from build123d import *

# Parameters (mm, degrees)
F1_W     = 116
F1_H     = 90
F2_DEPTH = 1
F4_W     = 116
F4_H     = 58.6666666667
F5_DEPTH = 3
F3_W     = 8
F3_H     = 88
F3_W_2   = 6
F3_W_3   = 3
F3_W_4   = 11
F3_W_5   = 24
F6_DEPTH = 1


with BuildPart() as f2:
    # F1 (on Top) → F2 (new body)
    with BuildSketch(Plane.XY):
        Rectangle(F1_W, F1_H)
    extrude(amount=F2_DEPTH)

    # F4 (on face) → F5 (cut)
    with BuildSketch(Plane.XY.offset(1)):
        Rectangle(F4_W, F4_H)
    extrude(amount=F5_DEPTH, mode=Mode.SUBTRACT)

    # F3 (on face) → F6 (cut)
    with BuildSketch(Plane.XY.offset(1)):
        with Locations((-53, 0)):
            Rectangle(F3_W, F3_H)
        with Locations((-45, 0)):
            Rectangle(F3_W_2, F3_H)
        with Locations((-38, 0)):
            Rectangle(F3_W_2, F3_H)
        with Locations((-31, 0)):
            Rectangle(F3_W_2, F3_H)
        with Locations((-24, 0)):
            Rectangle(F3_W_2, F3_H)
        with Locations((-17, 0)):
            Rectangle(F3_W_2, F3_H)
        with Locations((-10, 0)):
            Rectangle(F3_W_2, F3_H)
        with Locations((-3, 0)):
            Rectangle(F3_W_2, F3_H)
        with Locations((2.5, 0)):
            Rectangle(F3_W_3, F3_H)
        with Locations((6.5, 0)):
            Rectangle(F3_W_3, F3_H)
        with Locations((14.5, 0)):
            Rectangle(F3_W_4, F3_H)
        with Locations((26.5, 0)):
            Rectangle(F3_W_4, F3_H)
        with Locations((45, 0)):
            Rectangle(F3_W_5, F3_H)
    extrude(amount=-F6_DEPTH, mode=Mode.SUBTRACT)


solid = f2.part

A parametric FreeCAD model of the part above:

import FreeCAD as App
import Part
import Sketcher
Q = App.Units.Quantity

doc = App.newDocument("Part")
params = doc.addObject("Spreadsheet::Sheet", "Params")
for row, (alias, value) in enumerate([
    ("sketch1_width", "116 mm"),
    ("sketch1_height", "90 mm"),
    ("pad1_length", "1 mm"),
    ("sketch2_width", "116 mm"),
    ("pocket1_length", "3 mm"),
    ("sketch3_width", "8 mm"),
    ("sketch3_width2", "6 mm"),
    ("sketch3_width3", "3 mm"),
    ("sketch3_width4", "11 mm"),
    ("sketch3_width5", "24 mm"),
    ("pocket2_length", "1 mm"),
], start=1):
    params.set(f"A{row}", alias)
    params.set(f"B{row}", "=" + value)
    params.setAlias(f"B{row}", alias)

body = doc.addObject("PartDesign::Body", "Body")

# Sketch on XY plane
sketch1 = body.newObject("Sketcher::SketchObject", "Sketch")
sketch1.AttachmentSupport = (doc.getObject("XY_Plane"), [""])
sketch1.MapMode = "FlatFace"
sketch1.addGeometry([
    Part.LineSegment(App.Vector(-58, 45, 0), App.Vector(-58, -45, 0)),
    Part.LineSegment(App.Vector(-58, -45, 0), App.Vector(58, -45, 0)),
    Part.LineSegment(App.Vector(58, -45, 0), App.Vector(58, 45, 0)),
    Part.LineSegment(App.Vector(58, 45, 0), App.Vector(-58, 45, 0)),
], False)
sketch1.addConstraint([
    Sketcher.Constraint("Coincident", 0, 2, 1, 1),
    Sketcher.Constraint("Coincident", 1, 2, 2, 1),
    Sketcher.Constraint("Coincident", 2, 2, 3, 1),
    Sketcher.Constraint("Coincident", 3, 2, 0, 1),
    Sketcher.Constraint("Vertical", 0),
    Sketcher.Constraint("Horizontal", 1),
    Sketcher.Constraint("Vertical", 2),
    Sketcher.Constraint("Horizontal", 3),
    Sketcher.Constraint("Symmetric", 0, 2, 2, 2, -1, 1),
    Sketcher.Constraint("DistanceX", 1, 1, 1, 2, Q("116 mm")),
    Sketcher.Constraint("DistanceY", 0, 2, 0, 1, Q("90 mm")),
])
sketch1.setExpression("Constraints[9]", "Params.sketch1_width")
sketch1.setExpression("Constraints[10]", "Params.sketch1_height")
pad1 = body.newObject("PartDesign::Pad", "Pad")
pad1.Profile = sketch1
pad1.setExpression("Length", "Params.pad1_length")

# Sketch on XY plane
sketch2 = body.newObject("Sketcher::SketchObject", "Sketch001")
sketch2.AttachmentSupport = (doc.getObject("XY_Plane"), [""])
sketch2.MapMode = "FlatFace"
sketch2.AttachmentOffset = App.Placement(App.Vector(0, 0, 1), App.Rotation())
sketch2.addGeometry([
    Part.LineSegment(App.Vector(-58, 29, 0), App.Vector(-58, -29, 0)),
    Part.LineSegment(App.Vector(-58, -29, 0), App.Vector(58, -29, 0)),
    Part.LineSegment(App.Vector(58, -29, 0), App.Vector(58, 29, 0)),
    Part.LineSegment(App.Vector(58, 29, 0), App.Vector(-58, 29, 0)),
], False)
sketch2.addConstraint([
    Sketcher.Constraint("Coincident", 0, 2, 1, 1),
    Sketcher.Constraint("Coincident", 1, 2, 2, 1),
    Sketcher.Constraint("Coincident", 2, 2, 3, 1),
    Sketcher.Constraint("Coincident", 3, 2, 0, 1),
    Sketcher.Constraint("Vertical", 0),
    Sketcher.Constraint("Horizontal", 1),
    Sketcher.Constraint("Vertical", 2),
    Sketcher.Constraint("Horizontal", 3),
    Sketcher.Constraint("Symmetric", 0, 2, 2, 2, -1, 1),
    Sketcher.Constraint("DistanceX", 1, 1, 1, 2, Q("116 mm")),
    Sketcher.Constraint("DistanceY", 0, 2, 0, 1, Q("58.666667 mm")),
])
sketch2.setExpression("Constraints[9]", "Params.sketch2_width")
pocket1 = body.newObject("PartDesign::Pocket", "Pocket")
pocket1.Profile = sketch2
pocket1.setExpression("Length", "Params.pocket1_length")
pocket1.Reversed = True

# Sketch on XY plane
sketch3 = body.newObject("Sketcher::SketchObject", "Sketch002")
sketch3.AttachmentSupport = (doc.getObject("XY_Plane"), [""])
sketch3.MapMode = "FlatFace"
sketch3.AttachmentOffset = App.Placement(App.Vector(0, 0, 1), App.Rotation())
sketch3.addGeometry([
    Part.LineSegment(App.Vector(-57, 44, 0), App.Vector(-57, -44, 0)),  # 0
    Part.LineSegment(App.Vector(-57, -44, 0), App.Vector(-49, -44, 0)),  # 1
    Part.LineSegment(App.Vector(-49, -44, 0), App.Vector(-49, 44, 0)),  # 2
    Part.LineSegment(App.Vector(-49, 44, 0), App.Vector(-57, 44, 0)),  # 3
    Part.LineSegment(App.Vector(-48, 44, 0), App.Vector(-48, -44, 0)),  # 4
    Part.LineSegment(App.Vector(-48, -44, 0), App.Vector(-42, -44, 0)),  # 5
    Part.LineSegment(App.Vector(-42, -44, 0), App.Vector(-42, 44, 0)),  # 6
    Part.LineSegment(App.Vector(-42, 44, 0), App.Vector(-48, 44, 0)),  # 7
    Part.LineSegment(App.Vector(-41, 44, 0), App.Vector(-41, -44, 0)),  # 8
    Part.LineSegment(App.Vector(-41, -44, 0), App.Vector(-35, -44, 0)),  # 9
    Part.LineSegment(App.Vector(-35, -44, 0), App.Vector(-35, 44, 0)),  # 10
    Part.LineSegment(App.Vector(-35, 44, 0), App.Vector(-41, 44, 0)),  # 11
    Part.LineSegment(App.Vector(-34, 44, 0), App.Vector(-34, -44, 0)),  # 12
    Part.LineSegment(App.Vector(-34, -44, 0), App.Vector(-28, -44, 0)),  # 13
    Part.LineSegment(App.Vector(-28, -44, 0), App.Vector(-28, 44, 0)),  # 14
    Part.LineSegment(App.Vector(-28, 44, 0), App.Vector(-34, 44, 0)),  # 15
    Part.LineSegment(App.Vector(-27, 44, 0), App.Vector(-27, -44, 0)),  # 16
    Part.LineSegment(App.Vector(-27, -44, 0), App.Vector(-21, -44, 0)),  # 17
    Part.LineSegment(App.Vector(-21, -44, 0), App.Vector(-21, 44, 0)),  # 18
    Part.LineSegment(App.Vector(-21, 44, 0), App.Vector(-27, 44, 0)),  # 19
    Part.LineSegment(App.Vector(-20, 44, 0), App.Vector(-20, -44, 0)),  # 20
    Part.LineSegment(App.Vector(-20, -44, 0), App.Vector(-14, -44, 0)),  # 21
    Part.LineSegment(App.Vector(-14, -44, 0), App.Vector(-14, 44, 0)),  # 22
    Part.LineSegment(App.Vector(-14, 44, 0), App.Vector(-20, 44, 0)),  # 23
    Part.LineSegment(App.Vector(-13, 44, 0), App.Vector(-13, -44, 0)),  # 24
    Part.LineSegment(App.Vector(-13, -44, 0), App.Vector(-7, -44, 0)),  # 25
    Part.LineSegment(App.Vector(-7, -44, 0), App.Vector(-7, 44, 0)),  # 26
    Part.LineSegment(App.Vector(-7, 44, 0), App.Vector(-13, 44, 0)),  # 27
    Part.LineSegment(App.Vector(-6, 44, 0), App.Vector(-6, -44, 0)),  # 28
    Part.LineSegment(App.Vector(-6, -44, 0), App.Vector(0, -44, 0)),  # 29
    Part.LineSegment(App.Vector(0, -44, 0), App.Vector(0, 44, 0)),  # 30
    Part.LineSegment(App.Vector(0, 44, 0), App.Vector(-6, 44, 0)),  # 31
    Part.LineSegment(App.Vector(1, 44, 0), App.Vector(1, -44, 0)),  # 32
    Part.LineSegment(App.Vector(1, -44, 0), App.Vector(4, -44, 0)),  # 33
    Part.LineSegment(App.Vector(4, -44, 0), App.Vector(4, 44, 0)),  # 34
    Part.LineSegment(App.Vector(4, 44, 0), App.Vector(1, 44, 0)),  # 35
    Part.LineSegment(App.Vector(5, 44, 0), App.Vector(5, -44, 0)),  # 36
    Part.LineSegment(App.Vector(5, -44, 0), App.Vector(8, -44, 0)),  # 37
    Part.LineSegment(App.Vector(8, -44, 0), App.Vector(8, 44, 0)),  # 38
    Part.LineSegment(App.Vector(8, 44, 0), App.Vector(5, 44, 0)),  # 39
    Part.LineSegment(App.Vector(9, 44, 0), App.Vector(9, -44, 0)),  # 40
    Part.LineSegment(App.Vector(9, -44, 0), App.Vector(20, -44, 0)),  # 41
    Part.LineSegment(App.Vector(20, -44, 0), App.Vector(20, 44, 0)),  # 42
    Part.LineSegment(App.Vector(20, 44, 0), App.Vector(9, 44, 0)),  # 43
    Part.LineSegment(App.Vector(21, 44, 0), App.Vector(21, -44, 0)),  # 44
    Part.LineSegment(App.Vector(21, -44, 0), App.Vector(32, -44, 0)),  # 45
    Part.LineSegment(App.Vector(32, -44, 0), App.Vector(32, 44, 0)),  # 46
    Part.LineSegment(App.Vector(32, 44, 0), App.Vector(21, 44, 0)),  # 47
    Part.LineSegment(App.Vector(33, 44, 0), App.Vector(33, -44, 0)),  # 48
    Part.LineSegment(App.Vector(33, -44, 0), App.Vector(57, -44, 0)),  # 49
    Part.LineSegment(App.Vector(57, -44, 0), App.Vector(57, 44, 0)),  # 50
    Part.LineSegment(App.Vector(57, 44, 0), App.Vector(33, 44, 0)),  # 51
], False)
sketch3.addConstraint([
    Sketcher.Constraint("Coincident", 0, 2, 1, 1),
    Sketcher.Constraint("Coincident", 1, 2, 2, 1),
    Sketcher.Constraint("Coincident", 2, 2, 3, 1),
    Sketcher.Constraint("Coincident", 3, 2, 0, 1),
    Sketcher.Constraint("Coincident", 4, 2, 5, 1),
    Sketcher.Constraint("Coincident", 5, 2, 6, 1),
    Sketcher.Constraint("Coincident", 6, 2, 7, 1),
    Sketcher.Constraint("Coincident", 7, 2, 4, 1),
    Sketcher.Constraint("Coincident", 8, 2, 9, 1),
    Sketcher.Constraint("Coincident", 9, 2, 10, 1),
    Sketcher.Constraint("Coincident", 10, 2, 11, 1),
    Sketcher.Constraint("Coincident", 11, 2, 8, 1),
    Sketcher.Constraint("Coincident", 12, 2, 13, 1),
    Sketcher.Constraint("Coincident", 13, 2, 14, 1),
    Sketcher.Constraint("Coincident", 14, 2, 15, 1),
    Sketcher.Constraint("Coincident", 15, 2, 12, 1),
    Sketcher.Constraint("Coincident", 16, 2, 17, 1),
    Sketcher.Constraint("Coincident", 17, 2, 18, 1),
    Sketcher.Constraint("Coincident", 18, 2, 19, 1),
    Sketcher.Constraint("Coincident", 19, 2, 16, 1),
    Sketcher.Constraint("Coincident", 20, 2, 21, 1),
    Sketcher.Constraint("Coincident", 21, 2, 22, 1),
    Sketcher.Constraint("Coincident", 22, 2, 23, 1),
    Sketcher.Constraint("Coincident", 23, 2, 20, 1),
    Sketcher.Constraint("Coincident", 24, 2, 25, 1),
    Sketcher.Constraint("Coincident", 25, 2, 26, 1),
    Sketcher.Constraint("Coincident", 26, 2, 27, 1),
    Sketcher.Constraint("Coincident", 27, 2, 24, 1),
    Sketcher.Constraint("Coincident", 28, 2, 29, 1),
    Sketcher.Constraint("Coincident", 29, 2, 30, 1),
    Sketcher.Constraint("Coincident", 30, 2, 31, 1),
    Sketcher.Constraint("Coincident", 31, 2, 28, 1),
    Sketcher.Constraint("Coincident", 32, 2, 33, 1),
    Sketcher.Constraint("Coincident", 33, 2, 34, 1),
    Sketcher.Constraint("Coincident", 34, 2, 35, 1),
    Sketcher.Constraint("Coincident", 35, 2, 32, 1),
    Sketcher.Constraint("Coincident", 36, 2, 37, 1),
    Sketcher.Constraint("Coincident", 37, 2, 38, 1),
    Sketcher.Constraint("Coincident", 38, 2, 39, 1),
    Sketcher.Constraint("Coincident", 39, 2, 36, 1),
    Sketcher.Constraint("Coincident", 40, 2, 41, 1),
    Sketcher.Constraint("Coincident", 41, 2, 42, 1),
    Sketcher.Constraint("Coincident", 42, 2, 43, 1),
    Sketcher.Constraint("Coincident", 43, 2, 40, 1),
    Sketcher.Constraint("Coincident", 44, 2, 45, 1),
    Sketcher.Constraint("Coincident", 45, 2, 46, 1),
    Sketcher.Constraint("Coincident", 46, 2, 47, 1),
    Sketcher.Constraint("Coincident", 47, 2, 44, 1),
    Sketcher.Constraint("Coincident", 48, 2, 49, 1),
    Sketcher.Constraint("Coincident", 49, 2, 50, 1),
    Sketcher.Constraint("Coincident", 50, 2, 51, 1),
    Sketcher.Constraint("Coincident", 51, 2, 48, 1),
    Sketcher.Constraint("Vertical", 0),
    Sketcher.Constraint("Horizontal", 1),
    Sketcher.Constraint("Vertical", 2),
    Sketcher.Constraint("Horizontal", 3),
    Sketcher.Constraint("Vertical", 4),
    Sketcher.Constraint("Horizontal", 5),
    Sketcher.Constraint("Vertical", 6),
    Sketcher.Constraint("Horizontal", 7),
    Sketcher.Constraint("Vertical", 8),
    Sketcher.Constraint("Horizontal", 9),
    Sketcher.Constraint("Vertical", 10),
    Sketcher.Constraint("Horizontal", 11),
    Sketcher.Constraint("Vertical", 12),
    Sketcher.Constraint("Horizontal", 13),
    Sketcher.Constraint("Vertical", 14),
    Sketcher.Constraint("Horizontal", 15),
    Sketcher.Constraint("Vertical", 16),
    Sketcher.Constraint("Horizontal", 17),
    Sketcher.Constraint("Vertical", 18),
    Sketcher.Constraint("Horizontal", 19),
    Sketcher.Constraint("Vertical", 20),
    Sketcher.Constraint("Horizontal", 21),
    Sketcher.Constraint("Vertical", 22),
    Sketcher.Constraint("Horizontal", 23),
    Sketcher.Constraint("Vertical", 24),
    Sketcher.Constraint("Horizontal", 25),
    Sketcher.Constraint("Vertical", 26),
    Sketcher.Constraint("Horizontal", 27),
    Sketcher.Constraint("Vertical", 28),
    Sketcher.Constraint("Horizontal", 29),
    Sketcher.Constraint("Vertical", 30),
    Sketcher.Constraint("Horizontal", 31),
    Sketcher.Constraint("Vertical", 32),
    Sketcher.Constraint("Horizontal", 33),
    Sketcher.Constraint("Vertical", 34),
    Sketcher.Constraint("Horizontal", 35),
    Sketcher.Constraint("Vertical", 36),
    Sketcher.Constraint("Horizontal", 37),
    Sketcher.Constraint("Vertical", 38),
    Sketcher.Constraint("Horizontal", 39),
    Sketcher.Constraint("Vertical", 40),
    Sketcher.Constraint("Horizontal", 41),
    Sketcher.Constraint("Vertical", 42),
    Sketcher.Constraint("Horizontal", 43),
    Sketcher.Constraint("Vertical", 44),
    Sketcher.Constraint("Horizontal", 45),
    Sketcher.Constraint("Vertical", 46),
    Sketcher.Constraint("Horizontal", 47),
    Sketcher.Constraint("Vertical", 48),
    Sketcher.Constraint("Horizontal", 49),
    Sketcher.Constraint("Vertical", 50),
    Sketcher.Constraint("Horizontal", 51),
    Sketcher.Constraint("Symmetric", 29, 2, 30, 2, -1, 1),
    Sketcher.Constraint("Symmetric", 23, 2, 41, 2, -1, 1),
    Sketcher.Constraint("Symmetric", 18, 2, 44, 2, -1, 1),
    Sketcher.Constraint("Symmetric", 3, 2, 49, 2, -1, 1),
    Sketcher.Constraint("Horizontal", 1, 2, 4, 2),
    Sketcher.Constraint("Horizontal", 3, 2, 6, 2),
    Sketcher.Constraint("Horizontal", 5, 2, 8, 2),
    Sketcher.Constraint("Horizontal", 7, 2, 10, 2),
    Sketcher.Constraint("Horizontal", 9, 2, 12, 2),
    Sketcher.Constraint("Horizontal", 11, 2, 14, 2),
    Sketcher.Constraint("Horizontal", 13, 2, 16, 2),
    Sketcher.Constraint("Horizontal", 15, 2, 18, 2),
    Sketcher.Constraint("Horizontal", 17, 2, 20, 2),
    Sketcher.Constraint("Horizontal", 19, 2, 22, 2),
    Sketcher.Constraint("Horizontal", 21, 2, 24, 2),
    Sketcher.Constraint("Horizontal", 23, 2, 26, 2),
    Sketcher.Constraint("Horizontal", 25, 2, 28, 2),
    Sketcher.Constraint("Horizontal", 27, 2, 30, 2),
    Sketcher.Constraint("Horizontal", 29, 2, 32, 2),
    Sketcher.Constraint("Horizontal", 31, 2, 34, 2),
    Sketcher.Constraint("Horizontal", 33, 2, 36, 2),
    Sketcher.Constraint("Horizontal", 35, 2, 38, 2),
    Sketcher.Constraint("Horizontal", 39, 2, 42, 2),
    Sketcher.Constraint("Horizontal", 43, 2, 46, 2),
    Sketcher.Constraint("Horizontal", 47, 2, 50, 2),
    Sketcher.Constraint("Equal", 7, 9),
    Sketcher.Constraint("Equal", 11, 13),
    Sketcher.Constraint("Equal", 15, 17),
    Sketcher.Constraint("Equal", 19, 21),
    Sketcher.Constraint("Equal", 23, 25),
    Sketcher.Constraint("Equal", 27, 29),
    Sketcher.Constraint("Equal", 35, 37),
    Sketcher.Constraint("Equal", 43, 45),
    Sketcher.Constraint("DistanceX", 1, 1, 1, 2, Q("8 mm")),
    Sketcher.Constraint("DistanceX", 5, 1, 5, 2, Q("6 mm")),
    Sketcher.Constraint("DistanceX", 33, 1, 33, 2, Q("3 mm")),
    Sketcher.Constraint("DistanceX", 41, 1, 41, 2, Q("11 mm")),
    Sketcher.Constraint("DistanceX", 49, 1, 49, 2, Q("24 mm")),
    Sketcher.Constraint("DistanceY", 0, 2, 0, 1, Q("88 mm")),
    Sketcher.Constraint("DistanceX", 0, 2, -1, 1, Q("57 mm")),
    Sketcher.Constraint("DistanceX", 4, 2, -1, 1, Q("48 mm")),
    Sketcher.Constraint("DistanceX", 8, 2, -1, 1, Q("41 mm")),
    Sketcher.Constraint("DistanceX", 12, 2, -1, 1, Q("34 mm")),
    Sketcher.Constraint("DistanceX", 16, 2, -1, 1, Q("27 mm")),
    Sketcher.Constraint("DistanceX", 20, 2, -1, 1, Q("20 mm")),
    Sketcher.Constraint("DistanceX", 24, 2, -1, 1, Q("13 mm")),
    Sketcher.Constraint("DistanceX", -1, 1, 32, 2, Q("1 mm")),
    Sketcher.Constraint("DistanceX", -1, 1, 36, 2, Q("5 mm")),
])
sketch3.setExpression("Constraints[137]", "Params.sketch3_width")
sketch3.setExpression("Constraints[138]", "Params.sketch3_width2")
sketch3.setExpression("Constraints[139]", "Params.sketch3_width3")
sketch3.setExpression("Constraints[140]", "Params.sketch3_width4")
sketch3.setExpression("Constraints[141]", "Params.sketch3_width5")
pocket2 = body.newObject("PartDesign::Pocket", "Pocket001")
pocket2.Profile = sketch3
pocket2.setExpression("Length", "Params.pocket2_length")

doc.recompute()
